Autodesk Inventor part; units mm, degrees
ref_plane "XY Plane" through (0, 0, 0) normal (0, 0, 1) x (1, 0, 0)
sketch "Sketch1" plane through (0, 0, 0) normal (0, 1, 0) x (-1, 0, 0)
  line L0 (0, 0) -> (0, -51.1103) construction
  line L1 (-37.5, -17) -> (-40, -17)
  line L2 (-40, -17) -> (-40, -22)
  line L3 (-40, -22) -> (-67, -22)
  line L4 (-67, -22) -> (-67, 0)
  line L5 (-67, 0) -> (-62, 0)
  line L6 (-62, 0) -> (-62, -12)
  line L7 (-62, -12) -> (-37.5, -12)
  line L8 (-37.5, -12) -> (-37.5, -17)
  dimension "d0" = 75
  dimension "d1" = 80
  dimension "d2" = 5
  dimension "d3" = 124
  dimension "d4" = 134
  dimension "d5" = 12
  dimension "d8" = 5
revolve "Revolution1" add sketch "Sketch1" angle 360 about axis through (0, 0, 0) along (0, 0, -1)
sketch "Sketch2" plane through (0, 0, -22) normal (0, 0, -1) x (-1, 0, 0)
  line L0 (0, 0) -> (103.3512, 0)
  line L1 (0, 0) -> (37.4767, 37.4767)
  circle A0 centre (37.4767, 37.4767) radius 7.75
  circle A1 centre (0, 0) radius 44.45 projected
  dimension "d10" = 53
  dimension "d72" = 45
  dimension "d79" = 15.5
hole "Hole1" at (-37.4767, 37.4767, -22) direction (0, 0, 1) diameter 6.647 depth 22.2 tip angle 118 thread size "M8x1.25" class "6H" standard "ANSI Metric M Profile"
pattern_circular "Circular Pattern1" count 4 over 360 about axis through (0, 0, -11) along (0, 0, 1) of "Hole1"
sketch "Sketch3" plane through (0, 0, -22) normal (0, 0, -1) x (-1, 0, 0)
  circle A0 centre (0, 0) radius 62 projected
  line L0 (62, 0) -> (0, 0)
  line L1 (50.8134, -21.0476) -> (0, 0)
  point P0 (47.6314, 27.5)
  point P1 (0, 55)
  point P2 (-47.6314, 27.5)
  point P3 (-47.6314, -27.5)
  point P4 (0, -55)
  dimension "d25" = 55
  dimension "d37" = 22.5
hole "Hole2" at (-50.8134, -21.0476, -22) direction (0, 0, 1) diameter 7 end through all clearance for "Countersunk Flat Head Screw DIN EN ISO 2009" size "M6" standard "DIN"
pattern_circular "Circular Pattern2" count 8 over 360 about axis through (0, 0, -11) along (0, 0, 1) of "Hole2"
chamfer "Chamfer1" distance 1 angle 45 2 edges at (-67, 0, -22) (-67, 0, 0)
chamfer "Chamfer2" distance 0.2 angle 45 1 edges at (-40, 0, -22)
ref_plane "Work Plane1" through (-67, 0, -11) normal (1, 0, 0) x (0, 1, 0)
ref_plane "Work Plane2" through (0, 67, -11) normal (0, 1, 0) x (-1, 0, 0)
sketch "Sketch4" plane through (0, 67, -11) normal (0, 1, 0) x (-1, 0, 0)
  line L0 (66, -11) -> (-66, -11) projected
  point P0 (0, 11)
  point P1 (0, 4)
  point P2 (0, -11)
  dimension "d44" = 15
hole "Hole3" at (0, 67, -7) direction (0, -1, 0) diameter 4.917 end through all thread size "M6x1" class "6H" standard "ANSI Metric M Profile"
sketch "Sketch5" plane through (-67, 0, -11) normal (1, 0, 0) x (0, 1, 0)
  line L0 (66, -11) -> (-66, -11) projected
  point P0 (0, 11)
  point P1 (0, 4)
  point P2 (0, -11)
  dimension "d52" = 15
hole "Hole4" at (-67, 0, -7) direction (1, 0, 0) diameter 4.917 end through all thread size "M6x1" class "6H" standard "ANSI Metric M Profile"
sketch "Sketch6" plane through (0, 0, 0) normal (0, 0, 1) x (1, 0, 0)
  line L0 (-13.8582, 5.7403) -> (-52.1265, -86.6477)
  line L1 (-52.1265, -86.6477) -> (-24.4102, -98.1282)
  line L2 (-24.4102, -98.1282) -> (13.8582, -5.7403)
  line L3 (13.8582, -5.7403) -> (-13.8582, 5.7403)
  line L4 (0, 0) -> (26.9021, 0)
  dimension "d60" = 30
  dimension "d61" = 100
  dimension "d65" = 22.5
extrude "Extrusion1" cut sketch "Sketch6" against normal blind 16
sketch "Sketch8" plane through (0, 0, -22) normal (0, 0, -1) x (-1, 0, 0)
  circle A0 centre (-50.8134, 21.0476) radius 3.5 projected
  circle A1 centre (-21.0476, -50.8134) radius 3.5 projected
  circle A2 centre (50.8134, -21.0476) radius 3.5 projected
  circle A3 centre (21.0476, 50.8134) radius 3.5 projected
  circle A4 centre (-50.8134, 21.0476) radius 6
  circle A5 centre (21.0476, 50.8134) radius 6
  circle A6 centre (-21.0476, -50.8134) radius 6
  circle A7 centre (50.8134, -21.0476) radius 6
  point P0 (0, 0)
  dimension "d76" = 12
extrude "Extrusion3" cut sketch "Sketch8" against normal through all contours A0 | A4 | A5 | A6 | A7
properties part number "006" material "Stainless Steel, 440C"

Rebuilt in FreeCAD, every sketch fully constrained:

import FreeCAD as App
import Part
import Sketcher
from FreeCAD import Vector
Q = App.Units.Quantity


def edges_at(feature, points):
    """Names of the edges that pass closest to the given points."""
    edges = feature.Shape.Edges
    near = lambda p: min(range(len(edges)), key=lambda i: edges[i].distToShape(Part.Vertex(*p))[0])
    return sorted({f"Edge{near(p) + 1}" for p in points})

doc = App.newDocument("Part")
body = doc.addObject("PartDesign::Body", "Body")

# Sketch on XZ plane
sketch1 = body.newObject("Sketcher::SketchObject", "Sketch")
sketch1.AttachmentSupport = (doc.getObject("XZ_Plane"), [""])
sketch1.MapMode = "FlatFace"
sketch1.addGeometry([
    Part.LineSegment(Vector(40, -17, 0), Vector(37.5, -17, 0)),  # 0
    Part.LineSegment(Vector(37.5, -17, 0), Vector(37.5, -12, 0)),  # 1
    Part.LineSegment(Vector(37.5, -12, 0), Vector(62, -12, 0)),  # 2
    Part.LineSegment(Vector(62, -12, 0), Vector(62, 0, 0)),  # 3
    Part.LineSegment(Vector(62, 0, 0), Vector(67, 0, 0)),  # 4
    Part.LineSegment(Vector(67, 0, 0), Vector(67, -22, 0)),  # 5
    Part.LineSegment(Vector(67, -22, 0), Vector(40, -22, 0)),  # 6
    Part.LineSegment(Vector(40, -22, 0), Vector(40, -17, 0)),  # 7
], False)
sketch1.addConstraint([
    Sketcher.Constraint("Coincident", 0, 2, 1, 1),
    Sketcher.Constraint("Coincident", 1, 2, 2, 1),
    Sketcher.Constraint("Coincident", 2, 2, 3, 1),
    Sketcher.Constraint("Coincident", 3, 2, 4, 1),
    Sketcher.Constraint("Coincident", 4, 2, 5, 1),
    Sketcher.Constraint("Coincident", 5, 2, 6, 1),
    Sketcher.Constraint("Coincident", 6, 2, 7, 1),
    Sketcher.Constraint("Coincident", 7, 2, 0, 1),
    Sketcher.Constraint("Horizontal", 0),
    Sketcher.Constraint("Vertical", 1),
    Sketcher.Constraint("Horizontal", 2),
    Sketcher.Constraint("Vertical", 3),
    Sketcher.Constraint("Horizontal", 4),
    Sketcher.Constraint("Vertical", 5),
    Sketcher.Constraint("Horizontal", 6),
    Sketcher.Constraint("Vertical", 7),
    Sketcher.Constraint("PointOnObject", 3, 2, -1),
    Sketcher.Constraint("Equal", 4, 1),
    Sketcher.Constraint("Equal", 1, 7),
    Sketcher.Constraint("DistanceX", 4, 1, 4, 2, Q("5 mm")),
    Sketcher.Constraint("DistanceY", 3, 1, 3, 2, Q("12 mm")),
    Sketcher.Constraint("DistanceX", 6, 2, 6, 1, Q("27 mm")),
    Sketcher.Constraint("DistanceX", 0, 2, 0, 1, Q("2.5 mm")),
    Sketcher.Constraint("DistanceX", -1, 1, 2, 2, Q("62 mm")),
])
revolution = body.newObject("PartDesign::Revolution", "Revolution")
revolution.Profile = sketch1
revolution.ReferenceAxis = (sketch1, ["V_Axis"])
revolution.Angle = 360

# Sketch on XY plane
sketch2 = body.newObject("Sketcher::SketchObject", "Sketch001")
sketch2.AttachmentSupport = (doc.getObject("XY_Plane"), [""])
sketch2.MapMode = "FlatFace"
sketch2.AttachmentOffset = App.Placement(Vector(0, 0, -22), App.Rotation())
sketch2.addGeometry(Part.Circle(Vector(-37.5, 37.5, 0), Vector(0, 0, 1), 3.3), False)
sketch2.addConstraint([
    Sketcher.Constraint("Diameter", 0, Q("6.647 mm")),
    Sketcher.Constraint("DistanceX", 0, 3, -1, 1, Q("37.4767 mm")),
    Sketcher.Constraint("DistanceY", -1, 1, 0, 3, Q("37.4767 mm")),
])
doc.recompute()
hole = body.newObject("PartDesign::Hole", "Hole")
hole.Profile = sketch2
hole.ThreadType = "None"
hole.Diameter = 6.647
hole.DepthType = "Dimension"
hole.Depth = 22.2
hole.DrillPoint = "Angled"
hole.DrillPointAngle = 118
hole.Reversed = True
doc.recompute()

polarpattern = body.newObject("PartDesign::PolarPattern", "PolarPattern")
polarpattern.Originals = [hole]
polarpattern.Axis = (doc.getObject("Z_Axis"), [""])
polarpattern.Angle = 360
polarpattern.Occurrences = 4
body.Tip = polarpattern

# Sketch on XY plane
sketch3 = body.newObject("Sketcher::SketchObject", "Sketch002")
sketch3.AttachmentSupport = (doc.getObject("XY_Plane"), [""])
sketch3.MapMode = "FlatFace"
sketch3.AttachmentOffset = App.Placement(Vector(0, 0, -22), App.Rotation())
sketch3.addGeometry(Part.Circle(Vector(-50.8, -21, 0), Vector(0, 0, 1), 3.5), False)
sketch3.addConstraint([
    Sketcher.Constraint("Diameter", 0, Q("7 mm")),
    Sketcher.Constraint("DistanceX", 0, 3, -1, 1, Q("50.8134 mm")),
    Sketcher.Constraint("DistanceY", 0, 3, -1, 1, Q("21.0476 mm")),
])
doc.recompute()
hole2 = body.newObject("PartDesign::Hole", "Hole001")
hole2.Profile = sketch3
hole2.ThreadType = "None"
hole2.Diameter = 7
hole2.DepthType = "ThroughAll"
hole2.Reversed = True
doc.recompute()

polarpattern2 = body.newObject("PartDesign::PolarPattern", "PolarPattern001")
polarpattern2.Originals = [hole2]
polarpattern2.Axis = (doc.getObject("Z_Axis"), [""])
polarpattern2.Angle = 360
polarpattern2.Occurrences = 8
body.Tip = polarpattern2
doc.recompute()

chamfer = body.newObject("PartDesign::Chamfer", "Chamfer")
chamfer.Base = (polarpattern2, edges_at(polarpattern2, [(-67, 0, -22), (-67, 0, 0)]))
chamfer.Size = 1
doc.recompute()

chamfer2 = body.newObject("PartDesign::Chamfer", "Chamfer001")
chamfer2.Base = (chamfer, edges_at(chamfer, [(-40, 0, -22)]))
chamfer2.Size = 0.2

# Sketch on XZ plane
sketch4 = body.newObject("Sketcher::SketchObject", "Sketch003")
sketch4.AttachmentSupport = (doc.getObject("XZ_Plane"), [""])
sketch4.MapMode = "FlatFace"
sketch4.AttachmentOffset = App.Placement(Vector(0, 0, -67), App.Rotation())
sketch4.addGeometry(Part.Circle(Vector(0, -7, 0), Vector(0, 0, 1), 2.5), False)
sketch4.addConstraint([
    Sketcher.Constraint("PointOnObject", 0, 3, -2),
    Sketcher.Constraint("Diameter", 0, Q("4.917 mm")),
    Sketcher.Constraint("DistanceY", 0, 3, -1, 1, Q("7 mm")),
])
doc.recompute()
hole3 = body.newObject("PartDesign::Hole", "Hole002")
hole3.Profile = sketch4
hole3.ThreadType = "None"
hole3.Diameter = 4.917
hole3.DepthType = "ThroughAll"
hole3.Reversed = True

# Sketch on YZ plane
sketch5 = body.newObject("Sketcher::SketchObject", "Sketch004")
sketch5.AttachmentSupport = (doc.getObject("YZ_Plane"), [""])
sketch5.MapMode = "FlatFace"
sketch5.AttachmentOffset = App.Placement(Vector(0, 0, -67), App.Rotation())
sketch5.addGeometry(Part.Circle(Vector(0, -7, 0), Vector(0, 0, 1), 2.5), False)
sketch5.addConstraint([
    Sketcher.Constraint("PointOnObject", 0, 3, -2),
    Sketcher.Constraint("Diameter", 0, Q("4.917 mm")),
    Sketcher.Constraint("DistanceY", 0, 3, -1, 1, Q("7 mm")),
])
doc.recompute()
hole4 = body.newObject("PartDesign::Hole", "Hole003")
hole4.Profile = sketch5
hole4.ThreadType = "None"
hole4.Diameter = 4.917
hole4.DepthType = "ThroughAll"
hole4.Reversed = True

# Sketch on XY plane
sketch6 = body.newObject("Sketcher::SketchObject", "Sketch005")
sketch6.AttachmentSupport = (doc.getObject("XY_Plane"), [""])
sketch6.MapMode = "FlatFace"
sketch6.addGeometry([
    Part.LineSegment(Vector(14, -6, 0), Vector(-14, 6, 0)),
    Part.LineSegment(Vector(-14, 6, 0), Vector(-52, -87, 0)),
    Part.LineSegment(Vector(-52, -87, 0), Vector(-24, -98, 0)),
    Part.LineSegment(Vector(-24, -98, 0), Vector(14, -6, 0)),
], False)
sketch6.addConstraint([
    Sketcher.Constraint("Coincident", 0, 2, 1, 1),
    Sketcher.Constraint("Coincident", 1, 2, 2, 1),
    Sketcher.Constraint("Coincident", 2, 2, 3, 1),
    Sketcher.Constraint("Coincident", 3, 2, 0, 1),
    Sketcher.Constraint("Symmetric", 0, 2, 3, 2, -1, 1),
    Sketcher.Constraint("Perpendicular", 0, 1),
    Sketcher.Constraint("Perpendicular", 1, 2),
    Sketcher.Constraint("Perpendicular", 2, 3),
    Sketcher.Constraint("Distance", 0, Q("30 mm")),
    Sketcher.Constraint("Distance", 1, Q("100 mm")),
    Sketcher.Constraint("Angle", 2, Q("-22.5 deg")),
])
pocket1 = body.newObject("PartDesign::Pocket", "Pocket")
pocket1.Profile = sketch6
pocket1.Length = 16

# Sketch on XY plane
sketch7 = body.newObject("Sketcher::SketchObject", "Sketch006")
sketch7.AttachmentSupport = (doc.getObject("XY_Plane"), [""])
sketch7.MapMode = "FlatFace"
sketch7.AttachmentOffset = App.Placement(Vector(0, 0, -22), App.Rotation())
sketch7.addGeometry([
    Part.Circle(Vector(50.8, 21, 0), Vector(0, 0, 1), 6),  # 0
    Part.Circle(Vector(-21, 50.8, 0), Vector(0, 0, 1), 6),  # 1
    Part.Circle(Vector(-21, 50.8, 0), Vector(0, 0, 1), 3.5),  # 2
    Part.Circle(Vector(21, -50.8, 0), Vector(0, 0, 1), 6),  # 3
    Part.Circle(Vector(21, -50.8, 0), Vector(0, 0, 1), 3.5),  # 4
    Part.Circle(Vector(-50.8, -21, 0), Vector(0, 0, 1), 6),  # 5
    Part.Circle(Vector(-50.8, -21, 0), Vector(0, 0, 1), 3.5),  # 6
], False)
sketch7.addConstraint([
    Sketcher.Constraint("Coincident", 2, 3, 1, 3),
    Sketcher.Constraint("Coincident", 4, 3, 3, 3),
    Sketcher.Constraint("Coincident", 6, 3, 5, 3),
    Sketcher.Constraint("Equal", 0, 1),
    Sketcher.Constraint("Equal", 1, 3),
    Sketcher.Constraint("Equal", 2, 4),
    Sketcher.Constraint("Equal", 3, 5),
    Sketcher.Constraint("Equal", 4, 6),
    Sketcher.Constraint("Symmetric", 1, 3, 3, 3, -1, 1),
    Sketcher.Constraint("Symmetric", 0, 3, 5, 3, -1, 1),
    Sketcher.Constraint("Diameter", 0, Q("12 mm")),
    Sketcher.Constraint("Diameter", 2, Q("7 mm")),
    Sketcher.Constraint("DistanceX", 1, 3, 0, 3, Q("71.861 mm")),
    Sketcher.Constraint("DistanceY", 3, 3, 0, 3, Q("71.861 mm")),
    Sketcher.Constraint("DistanceX", -1, 1, 0, 3, Q("50.8134 mm")),
    Sketcher.Constraint("DistanceY", -1, 1, 0, 3, Q("21.0476 mm")),
])
pocket2 = body.newObject("PartDesign::Pocket", "Pocket001")
pocket2.Profile = sketch7
pocket2.Type = "ThroughAll"
pocket2.Reversed = True

doc.recompute()
